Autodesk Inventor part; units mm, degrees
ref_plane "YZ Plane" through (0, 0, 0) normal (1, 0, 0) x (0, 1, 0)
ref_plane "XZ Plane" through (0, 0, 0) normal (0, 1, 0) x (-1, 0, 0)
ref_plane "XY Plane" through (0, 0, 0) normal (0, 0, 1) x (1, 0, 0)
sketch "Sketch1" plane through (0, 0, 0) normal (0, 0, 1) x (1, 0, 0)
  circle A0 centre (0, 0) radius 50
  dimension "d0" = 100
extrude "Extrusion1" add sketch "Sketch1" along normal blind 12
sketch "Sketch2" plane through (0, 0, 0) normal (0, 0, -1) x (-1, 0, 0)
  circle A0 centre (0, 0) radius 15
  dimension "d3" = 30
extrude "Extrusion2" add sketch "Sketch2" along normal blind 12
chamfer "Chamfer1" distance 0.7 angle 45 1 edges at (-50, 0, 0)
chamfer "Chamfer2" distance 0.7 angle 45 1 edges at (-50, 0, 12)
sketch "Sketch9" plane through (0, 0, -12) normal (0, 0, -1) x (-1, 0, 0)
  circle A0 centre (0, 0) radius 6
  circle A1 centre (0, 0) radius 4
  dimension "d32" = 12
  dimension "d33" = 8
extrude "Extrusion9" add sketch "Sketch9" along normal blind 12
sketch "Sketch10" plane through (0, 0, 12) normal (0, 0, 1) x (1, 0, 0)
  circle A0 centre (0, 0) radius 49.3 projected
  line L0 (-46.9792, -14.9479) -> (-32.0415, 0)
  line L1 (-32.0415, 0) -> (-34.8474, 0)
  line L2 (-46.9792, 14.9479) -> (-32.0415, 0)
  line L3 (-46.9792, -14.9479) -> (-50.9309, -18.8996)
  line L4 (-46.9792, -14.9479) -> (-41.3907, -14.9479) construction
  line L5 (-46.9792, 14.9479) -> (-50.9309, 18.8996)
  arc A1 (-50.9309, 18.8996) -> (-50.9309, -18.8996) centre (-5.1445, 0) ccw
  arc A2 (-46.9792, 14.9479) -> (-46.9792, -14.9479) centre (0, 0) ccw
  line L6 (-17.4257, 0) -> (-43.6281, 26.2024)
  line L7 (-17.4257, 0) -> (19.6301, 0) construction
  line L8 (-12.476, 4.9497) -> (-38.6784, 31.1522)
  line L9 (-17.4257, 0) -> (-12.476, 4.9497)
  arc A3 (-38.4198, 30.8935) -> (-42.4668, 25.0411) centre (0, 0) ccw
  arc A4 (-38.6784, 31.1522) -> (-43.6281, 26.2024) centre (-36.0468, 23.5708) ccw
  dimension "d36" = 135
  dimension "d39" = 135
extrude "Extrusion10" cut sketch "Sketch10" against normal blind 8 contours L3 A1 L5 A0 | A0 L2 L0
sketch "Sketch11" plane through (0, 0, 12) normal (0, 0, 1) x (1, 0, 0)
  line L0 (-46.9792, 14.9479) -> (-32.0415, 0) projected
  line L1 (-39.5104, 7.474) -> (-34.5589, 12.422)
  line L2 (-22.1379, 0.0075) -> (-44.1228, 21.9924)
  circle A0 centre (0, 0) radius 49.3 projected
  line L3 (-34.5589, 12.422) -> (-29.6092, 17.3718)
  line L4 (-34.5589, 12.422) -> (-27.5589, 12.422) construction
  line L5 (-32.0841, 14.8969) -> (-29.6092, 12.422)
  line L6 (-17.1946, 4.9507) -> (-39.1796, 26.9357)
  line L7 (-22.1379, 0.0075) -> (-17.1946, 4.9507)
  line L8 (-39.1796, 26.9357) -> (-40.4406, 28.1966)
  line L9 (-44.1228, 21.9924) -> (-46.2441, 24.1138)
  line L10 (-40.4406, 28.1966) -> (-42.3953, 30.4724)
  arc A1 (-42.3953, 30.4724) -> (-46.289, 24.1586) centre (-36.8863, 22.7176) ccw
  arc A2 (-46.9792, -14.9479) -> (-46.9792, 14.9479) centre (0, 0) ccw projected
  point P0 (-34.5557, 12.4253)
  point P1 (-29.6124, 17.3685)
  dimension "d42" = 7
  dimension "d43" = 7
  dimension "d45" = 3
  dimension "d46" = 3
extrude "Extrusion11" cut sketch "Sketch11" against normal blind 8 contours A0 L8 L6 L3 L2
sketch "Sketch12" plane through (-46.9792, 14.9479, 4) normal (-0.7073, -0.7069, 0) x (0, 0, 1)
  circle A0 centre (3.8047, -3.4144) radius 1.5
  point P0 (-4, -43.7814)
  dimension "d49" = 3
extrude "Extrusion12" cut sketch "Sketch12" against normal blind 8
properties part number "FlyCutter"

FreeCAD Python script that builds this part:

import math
import FreeCAD as App
import Part
import Sketcher
from FreeCAD import Vector
Q = App.Units.Quantity


def edges_at(feature, points):
    """Names of the edges that pass closest to the given points."""
    edges = feature.Shape.Edges
    near = lambda p: min(range(len(edges)), key=lambda i: edges[i].distToShape(Part.Vertex(*p))[0])
    return sorted({f"Edge{near(p) + 1}" for p in points})

doc = App.newDocument("Part")
params = doc.addObject("Spreadsheet::Sheet", "Params")
for row, (alias, value) in enumerate([
    ("sketch1_diameter", "100 mm"),
    ("pad1_length", "12 mm"),
    ("sketch2_diameter", "30 mm"),
    ("pad2_length", "12 mm"),
    ("chamfer_size", "0.7 mm"),
    ("chamfer2_size", "0.7 mm"),
    ("sketch3_diameter", "12 mm"),
    ("sketch3_diameter2", "8 mm"),
    ("pad3_length", "12 mm"),
    ("pocket1_length", "8 mm"),
    ("sketch5_radius", "49.3 mm"),
    ("sketch5_length", "13.53 mm"),
    ("pocket2_length", "8 mm"),
    ("sketch6_diameter", "3 mm"),
    ("pocket3_length", "8 mm"),
], start=1):
    params.set(f"A{row}", alias)
    params.set(f"B{row}", "=" + value)
    params.setAlias(f"B{row}", alias)

body = doc.addObject("PartDesign::Body", "Body")

# Sketch on XY plane
sketch1 = body.newObject("Sketcher::SketchObject", "Sketch")
sketch1.AttachmentSupport = (doc.getObject("XY_Plane"), [""])
sketch1.MapMode = "FlatFace"
sketch1.addGeometry(Part.Circle(Vector(0, 0, 0), Vector(0, 0, 1), 50), False)
sketch1.addConstraint([
    Sketcher.Constraint("Coincident", 0, 3, -1, 1),
    Sketcher.Constraint("Diameter", 0, Q("100 mm")),
])
sketch1.setExpression("Constraints[1]", "Params.sketch1_diameter")
pad1 = body.newObject("PartDesign::Pad", "Pad")
pad1.Profile = sketch1
pad1.setExpression("Length", "Params.pad1_length")

# Sketch on XY plane
sketch2 = body.newObject("Sketcher::SketchObject", "Sketch001")
sketch2.AttachmentSupport = (doc.getObject("XY_Plane"), [""])
sketch2.MapMode = "FlatFace"
sketch2.addGeometry(Part.Circle(Vector(0, 0, 0), Vector(0, 0, 1), 15), False)
sketch2.addConstraint([
    Sketcher.Constraint("Coincident", 0, 3, -1, 1),
    Sketcher.Constraint("Diameter", 0, Q("30 mm")),
])
sketch2.setExpression("Constraints[1]", "Params.sketch2_diameter")
pad2 = body.newObject("PartDesign::Pad", "Pad001")
pad2.Profile = sketch2
pad2.setExpression("Length", "Params.pad2_length")
pad2.Reversed = True
doc.recompute()

chamfer = body.newObject("PartDesign::Chamfer", "Chamfer")
chamfer.Base = (pad2, edges_at(pad2, [(-50, 0, 0)]))
chamfer.setExpression("Size", "Params.chamfer_size")
doc.recompute()

chamfer2 = body.newObject("PartDesign::Chamfer", "Chamfer001")
chamfer2.Base = (chamfer, edges_at(chamfer, [(-50, 0, 12)]))
chamfer2.setExpression("Size", "Params.chamfer2_size")

# Sketch on XY plane
sketch3 = body.newObject("Sketcher::SketchObject", "Sketch002")
sketch3.AttachmentSupport = (doc.getObject("XY_Plane"), [""])
sketch3.MapMode = "FlatFace"
sketch3.AttachmentOffset = App.Placement(Vector(0, 0, -12), App.Rotation())
sketch3.addGeometry([
    Part.Circle(Vector(0, 0, 0), Vector(0, 0, 1), 6),
    Part.Circle(Vector(0, 0, 0), Vector(0, 0, 1), 4),
], False)
sketch3.addConstraint([
    Sketcher.Constraint("Coincident", 0, 3, -1, 1),
    Sketcher.Constraint("Coincident", 1, 3, -1, 1),
    Sketcher.Constraint("Diameter", 0, Q("12 mm")),
    Sketcher.Constraint("Diameter", 1, Q("8 mm")),
])
sketch3.setExpression("Constraints[2]", "Params.sketch3_diameter")
sketch3.setExpression("Constraints[3]", "Params.sketch3_diameter2")
pad3 = body.newObject("PartDesign::Pad", "Pad002")
pad3.Profile = sketch3
pad3.setExpression("Length", "Params.pad3_length")
pad3.Reversed = True

# Sketch on XY plane
sketch4 = body.newObject("Sketcher::SketchObject", "Sketch003")
sketch4.AttachmentSupport = (doc.getObject("XY_Plane"), [""])
sketch4.MapMode = "FlatFace"
sketch4.AttachmentOffset = App.Placement(Vector(0, 0, 12), App.Rotation())
sketch4.addGeometry([
    Part.LineSegment(Vector(-50.9309, -18.8996, 0), Vector(-46.9792, -14.9479, 0)),  # 0
    Part.LineSegment(Vector(-46.9792, -14.9479, 0), Vector(-32.0415, 0, 0)),  # 1
    Part.LineSegment(Vector(-32.0415, 0, 0), Vector(-46.9792, 14.9479, 0)),  # 2
    Part.LineSegment(Vector(-46.9792, 14.9479, 0), Vector(-50.9309, 18.8996, 0)),  # 3
    Part.ArcOfCircle(Part.Circle(Vector(-5.1445, 0, 0), Vector(0, 0, 1), 49.533719), math.radians(157.570262), math.radians(202.429738)),  # 4
], False)
sketch4.addConstraint([
    Sketcher.Constraint("Coincident", 0, 2, 1, 1),
    Sketcher.Constraint("Coincident", 1, 2, 2, 1),
    Sketcher.Constraint("Coincident", 2, 2, 3, 1),
    Sketcher.Constraint("Coincident", 3, 2, 4, 1),
    Sketcher.Constraint("Coincident", 4, 2, 0, 1),
    Sketcher.Constraint("PointOnObject", 4, 3, -1),
    Sketcher.Constraint("PointOnObject", 1, 2, -1),
    Sketcher.Constraint("Radius", 4, Q("49.5337 mm")),
    Sketcher.Constraint("DistanceY", 0, 2, -1, 1, Q("14.948 mm")),
    Sketcher.Constraint("DistanceY", -1, 1, 2, 2, Q("14.948 mm")),
    Sketcher.Constraint("DistanceX", 3, 2, -1, 1, Q("50.931 mm")),
    Sketcher.Constraint("DistanceX", 4, 2, -1, 1, Q("50.931 mm")),
    Sketcher.Constraint("DistanceX", 1, 2, 4, 3, Q("26.897 mm")),
    Sketcher.Constraint("Distance", 0, Q("5.5885 mm")),
    Sketcher.Constraint("Distance", 1, Q("21.1323 mm")),
    Sketcher.Constraint("Distance", 2, Q("21.1323 mm")),
])
pocket1 = body.newObject("PartDesign::Pocket", "Pocket")
pocket1.Profile = sketch4
pocket1.setExpression("Length", "Params.pocket1_length")

# Sketch on XY plane
sketch5 = body.newObject("Sketcher::SketchObject", "Sketch004")
sketch5.AttachmentSupport = (doc.getObject("XY_Plane"), [""])
sketch5.MapMode = "FlatFace"
sketch5.AttachmentOffset = App.Placement(Vector(0, 0, 12), App.Rotation())
sketch5.addGeometry([
    Part.ArcOfCircle(Part.Circle(Vector(0, 0, 0), Vector(0, 0, 1), 49.3), math.radians(145.11), math.radians(153.51)),  # 0
    Part.LineSegment(Vector(-44.1, 22, 0), Vector(-34.6, 12.4, 0)),  # 1
    Part.LineSegment(Vector(-34.6, 12.4, 0), Vector(-29.6, 17.4, 0)),  # 2
    Part.LineSegment(Vector(-29.6, 17.4, 0), Vector(-39.2, 26.9, 0)),  # 3
    Part.LineSegment(Vector(-39.2, 26.9, 0), Vector(-40.4, 28.2, 0)),  # 4
], False)
sketch5.addConstraint([
    Sketcher.Constraint("Coincident", 0, 2, 1, 1),
    Sketcher.Constraint("Coincident", 1, 2, 2, 1),
    Sketcher.Constraint("Coincident", 2, 2, 3, 1),
    Sketcher.Constraint("Coincident", 3, 2, 4, 1),
    Sketcher.Constraint("Coincident", 4, 2, 0, 1),
    Sketcher.Constraint("Coincident", 0, 3, -1, 1),
    Sketcher.Constraint("Perpendicular", 1, 2),
    Sketcher.Constraint("Perpendicular", 2, 3),
    Sketcher.Constraint("Parallel", 3, 4),
    Sketcher.Constraint("Equal", 1, 3),
    Sketcher.Constraint("Radius", 0, Q("49.3 mm")),
    Sketcher.Constraint("Angle", 1, Q("-45 deg")),
    Sketcher.Constraint("Distance", 1, Q("13.53 mm")),
    Sketcher.Constraint("DistanceX", 3, 2, 1, 2, Q("4.624 mm")),
    Sketcher.Constraint("DistanceX", 4, 2, 3, 2, Q("1.261 mm")),
])
sketch5.setExpression("Constraints[10]", "Params.sketch5_radius")
sketch5.setExpression("Constraints[12]", "Params.sketch5_length")
pocket2 = body.newObject("PartDesign::Pocket", "Pocket001")
pocket2.Profile = sketch5
pocket2.setExpression("Length", "Params.pocket2_length")

# Sketch on an angled plane
sketch6 = body.newObject("Sketcher::SketchObject", "Sketch005")
sketch6.Placement = App.Placement(Vector(-46.9792, 14.9479, 4), App.Rotation(Vector(0, 0, 1), Vector(-0.706906751, 0.707306755, 0), Vector(-0.707306755, -0.706906751, 0), "ZXY"))
sketch6.addGeometry(Part.Circle(Vector(3.8, -3.4, 0), Vector(0, 0, 1), 1.5), False)
sketch6.addConstraint([
    Sketcher.Constraint("Diameter", 0, Q("3 mm")),
    Sketcher.Constraint("DistanceX", -1, 1, 0, 3, Q("3.8047 mm")),
    Sketcher.Constraint("DistanceY", 0, 3, -1, 1, Q("3.4144 mm")),
])
sketch6.setExpression("Constraints[0]", "Params.sketch6_diameter")
pocket3 = body.newObject("PartDesign::Pocket", "Pocket002")
pocket3.Profile = sketch6
pocket3.setExpression("Length", "Params.pocket3_length")

doc.recompute()
